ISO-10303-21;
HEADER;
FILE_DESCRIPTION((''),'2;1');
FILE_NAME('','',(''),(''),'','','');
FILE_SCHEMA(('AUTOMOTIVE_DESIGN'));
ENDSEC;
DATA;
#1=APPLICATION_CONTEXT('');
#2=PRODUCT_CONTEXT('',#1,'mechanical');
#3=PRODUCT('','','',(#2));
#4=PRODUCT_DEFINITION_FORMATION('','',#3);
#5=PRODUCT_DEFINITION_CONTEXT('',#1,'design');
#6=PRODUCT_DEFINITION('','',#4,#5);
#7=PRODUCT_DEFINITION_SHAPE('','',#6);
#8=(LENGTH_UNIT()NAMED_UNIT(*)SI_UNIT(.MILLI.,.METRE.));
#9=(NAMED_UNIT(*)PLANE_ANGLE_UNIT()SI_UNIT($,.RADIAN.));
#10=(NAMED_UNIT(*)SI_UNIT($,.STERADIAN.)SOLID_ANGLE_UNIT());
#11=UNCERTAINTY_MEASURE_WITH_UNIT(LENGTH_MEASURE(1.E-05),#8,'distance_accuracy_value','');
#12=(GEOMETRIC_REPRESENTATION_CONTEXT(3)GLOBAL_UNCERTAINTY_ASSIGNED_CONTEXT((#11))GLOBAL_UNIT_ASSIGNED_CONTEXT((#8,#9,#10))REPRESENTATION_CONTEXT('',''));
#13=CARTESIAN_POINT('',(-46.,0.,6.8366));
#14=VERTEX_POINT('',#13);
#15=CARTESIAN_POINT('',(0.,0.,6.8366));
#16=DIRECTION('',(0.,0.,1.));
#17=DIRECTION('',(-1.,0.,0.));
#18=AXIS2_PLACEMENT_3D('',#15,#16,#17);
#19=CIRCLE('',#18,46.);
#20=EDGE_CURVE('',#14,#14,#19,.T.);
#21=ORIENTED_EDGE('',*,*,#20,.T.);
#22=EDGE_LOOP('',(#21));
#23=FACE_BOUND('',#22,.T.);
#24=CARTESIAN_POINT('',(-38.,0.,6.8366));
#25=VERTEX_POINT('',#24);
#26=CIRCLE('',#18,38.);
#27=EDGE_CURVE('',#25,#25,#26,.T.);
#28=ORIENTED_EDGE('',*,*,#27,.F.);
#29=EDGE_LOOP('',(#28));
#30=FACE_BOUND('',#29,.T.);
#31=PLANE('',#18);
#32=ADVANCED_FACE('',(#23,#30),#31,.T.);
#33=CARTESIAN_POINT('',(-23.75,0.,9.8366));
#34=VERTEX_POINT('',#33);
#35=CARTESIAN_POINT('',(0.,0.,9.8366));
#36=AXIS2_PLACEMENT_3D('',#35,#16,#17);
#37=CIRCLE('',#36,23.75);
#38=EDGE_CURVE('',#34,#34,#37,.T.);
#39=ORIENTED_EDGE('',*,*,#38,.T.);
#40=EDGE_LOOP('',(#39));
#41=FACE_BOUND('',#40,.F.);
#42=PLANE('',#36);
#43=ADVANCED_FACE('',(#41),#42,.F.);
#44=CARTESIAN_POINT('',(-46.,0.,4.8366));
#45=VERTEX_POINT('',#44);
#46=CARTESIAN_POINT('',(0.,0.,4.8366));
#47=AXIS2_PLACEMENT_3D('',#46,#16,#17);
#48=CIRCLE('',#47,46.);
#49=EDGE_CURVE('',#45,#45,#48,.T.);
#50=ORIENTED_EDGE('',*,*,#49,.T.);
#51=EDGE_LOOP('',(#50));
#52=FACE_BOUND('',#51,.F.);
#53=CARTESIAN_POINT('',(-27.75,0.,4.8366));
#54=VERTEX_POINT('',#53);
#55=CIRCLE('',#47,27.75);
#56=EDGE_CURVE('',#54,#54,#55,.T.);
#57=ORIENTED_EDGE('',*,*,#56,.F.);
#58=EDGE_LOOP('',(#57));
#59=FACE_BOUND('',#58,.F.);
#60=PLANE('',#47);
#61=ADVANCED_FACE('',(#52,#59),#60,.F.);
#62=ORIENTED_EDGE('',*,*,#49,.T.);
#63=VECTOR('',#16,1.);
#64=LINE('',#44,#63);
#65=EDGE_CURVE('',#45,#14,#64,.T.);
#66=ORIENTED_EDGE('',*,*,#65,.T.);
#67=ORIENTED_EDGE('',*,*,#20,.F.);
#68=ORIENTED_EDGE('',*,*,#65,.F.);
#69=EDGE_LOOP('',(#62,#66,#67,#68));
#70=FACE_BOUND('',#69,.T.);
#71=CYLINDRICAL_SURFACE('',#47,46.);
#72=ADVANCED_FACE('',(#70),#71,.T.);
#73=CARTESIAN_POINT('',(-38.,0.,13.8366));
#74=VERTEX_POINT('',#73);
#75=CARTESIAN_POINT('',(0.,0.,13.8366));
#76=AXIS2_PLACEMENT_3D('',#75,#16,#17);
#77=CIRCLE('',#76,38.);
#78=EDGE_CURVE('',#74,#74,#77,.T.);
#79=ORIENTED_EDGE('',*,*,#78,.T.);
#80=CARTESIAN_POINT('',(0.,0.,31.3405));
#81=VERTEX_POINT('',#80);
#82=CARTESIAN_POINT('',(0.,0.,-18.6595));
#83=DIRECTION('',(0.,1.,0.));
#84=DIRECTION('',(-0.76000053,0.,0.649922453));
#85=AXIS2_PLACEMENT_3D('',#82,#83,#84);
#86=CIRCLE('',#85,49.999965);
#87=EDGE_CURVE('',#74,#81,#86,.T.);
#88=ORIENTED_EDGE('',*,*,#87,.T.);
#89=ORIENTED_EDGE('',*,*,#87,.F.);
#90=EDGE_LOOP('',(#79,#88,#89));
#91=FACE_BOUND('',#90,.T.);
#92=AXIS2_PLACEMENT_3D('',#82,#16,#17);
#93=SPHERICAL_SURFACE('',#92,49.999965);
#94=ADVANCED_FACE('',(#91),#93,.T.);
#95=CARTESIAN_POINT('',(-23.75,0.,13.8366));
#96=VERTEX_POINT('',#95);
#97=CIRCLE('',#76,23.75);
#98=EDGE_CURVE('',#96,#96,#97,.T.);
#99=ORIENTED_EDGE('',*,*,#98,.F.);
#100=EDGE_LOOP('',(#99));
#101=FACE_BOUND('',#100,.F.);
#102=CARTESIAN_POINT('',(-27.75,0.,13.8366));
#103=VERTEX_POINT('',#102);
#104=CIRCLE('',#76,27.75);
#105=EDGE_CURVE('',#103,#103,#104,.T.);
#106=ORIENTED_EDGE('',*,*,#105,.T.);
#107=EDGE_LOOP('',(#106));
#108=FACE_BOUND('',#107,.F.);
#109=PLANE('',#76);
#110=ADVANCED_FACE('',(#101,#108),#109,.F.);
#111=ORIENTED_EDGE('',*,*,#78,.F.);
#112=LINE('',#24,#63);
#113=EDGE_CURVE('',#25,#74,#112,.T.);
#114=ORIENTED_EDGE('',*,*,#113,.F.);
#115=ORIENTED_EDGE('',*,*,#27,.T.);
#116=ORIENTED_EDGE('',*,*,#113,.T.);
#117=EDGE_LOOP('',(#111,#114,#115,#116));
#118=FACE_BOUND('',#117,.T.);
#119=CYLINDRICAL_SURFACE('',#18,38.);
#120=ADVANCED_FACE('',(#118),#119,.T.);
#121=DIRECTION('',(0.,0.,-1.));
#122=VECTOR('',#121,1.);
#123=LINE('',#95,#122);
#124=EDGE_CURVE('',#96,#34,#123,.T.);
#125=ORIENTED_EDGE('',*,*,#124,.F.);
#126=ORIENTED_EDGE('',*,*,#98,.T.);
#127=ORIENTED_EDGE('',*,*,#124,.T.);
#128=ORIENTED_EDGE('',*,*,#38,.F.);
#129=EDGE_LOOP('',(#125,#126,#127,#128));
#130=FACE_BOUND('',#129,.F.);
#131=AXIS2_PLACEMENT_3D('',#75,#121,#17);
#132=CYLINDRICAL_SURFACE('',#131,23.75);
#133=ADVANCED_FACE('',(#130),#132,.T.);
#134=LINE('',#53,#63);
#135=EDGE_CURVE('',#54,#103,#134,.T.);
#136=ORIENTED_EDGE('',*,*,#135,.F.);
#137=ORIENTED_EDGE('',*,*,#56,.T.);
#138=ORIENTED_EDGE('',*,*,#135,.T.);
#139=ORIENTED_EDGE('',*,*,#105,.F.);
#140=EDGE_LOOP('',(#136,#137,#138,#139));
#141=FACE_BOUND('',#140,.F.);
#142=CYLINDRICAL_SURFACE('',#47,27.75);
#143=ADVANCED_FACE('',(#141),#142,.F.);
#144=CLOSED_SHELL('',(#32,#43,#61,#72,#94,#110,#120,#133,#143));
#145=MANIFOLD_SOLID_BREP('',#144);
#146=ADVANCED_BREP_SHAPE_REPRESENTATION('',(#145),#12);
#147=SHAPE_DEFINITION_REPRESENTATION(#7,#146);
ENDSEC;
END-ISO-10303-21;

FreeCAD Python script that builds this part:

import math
import FreeCAD as App
import Part
import Sketcher

V = App.Vector

doc = App.newDocument("Part")
params = doc.addObject("Spreadsheet::Sheet", "Params")
for row, (alias, value) in enumerate([
    ("sketch1_radius", "50 mm"),
    ("sketch1_width", "8 mm"),
    ("sketch1_width2", "4 mm"),
    ("sketch1_height", "2 mm"),
    ("sketch1_height2", "7 mm"),
    ("revolution_angle", "360 deg"),
], start=1):
    params.set(f"A{row}", alias)
    params.set(f"B{row}", "=" + value)
    params.setAlias(f"B{row}", alias)

body = doc.addObject("PartDesign::Body", "Body")

# Sketch on XZ plane
sketch1 = doc.addObject("Sketcher::SketchObject", "Sketch")
body.addObject(sketch1)
sketch1.AttachmentSupport = (doc.XZ_Plane, [""])
sketch1.MapMode = "FlatFace"
sketch1.addGeometry([
    Part.LineSegment(V(-27.75, 4.8366, 0), V(-46, 4.8366, 0)),  # 0
    Part.LineSegment(V(-46, 4.8366, 0), V(-46, 6.8366, 0)),  # 1
    Part.LineSegment(V(-46, 6.8366, 0), V(-38, 6.8366, 0)),  # 2
    Part.LineSegment(V(-38, 6.8366, 0), V(-38, 13.8366, 0)),  # 3
    Part.ArcOfCircle(Part.Circle(V(0, -18.6595, 0), V(0, 0, 1), 49.999965), math.radians(90), math.radians(139.464245)),  # 4
    Part.LineSegment(V(0, 31.3405, 0), V(0, 9.8366, 0)),  # 5
    Part.LineSegment(V(0, 9.8366, 0), V(-23.75, 9.8366, 0)),  # 6
    Part.LineSegment(V(-23.75, 9.8366, 0), V(-23.75, 13.8366, 0)),  # 7
    Part.LineSegment(V(-23.75, 13.8366, 0), V(-27.75, 13.8366, 0)),  # 8
    Part.LineSegment(V(-27.75, 13.8366, 0), V(-27.75, 4.8366, 0)),  # 9
], False)
sketch1.addConstraint([
    Sketcher.Constraint("Coincident", 0, 2, 1, 1),
    Sketcher.Constraint("Coincident", 1, 2, 2, 1),
    Sketcher.Constraint("Coincident", 2, 2, 3, 1),
    Sketcher.Constraint("Coincident", 3, 2, 4, 2),
    Sketcher.Constraint("Coincident", 4, 1, 5, 1),
    Sketcher.Constraint("Coincident", 5, 2, 6, 1),
    Sketcher.Constraint("Coincident", 6, 2, 7, 1),
    Sketcher.Constraint("Coincident", 7, 2, 8, 1),
    Sketcher.Constraint("Coincident", 8, 2, 9, 1),
    Sketcher.Constraint("Coincident", 9, 2, 0, 1),
    Sketcher.Constraint("Horizontal", 0),
    Sketcher.Constraint("Vertical", 1),
    Sketcher.Constraint("Horizontal", 2),
    Sketcher.Constraint("Vertical", 3),
    Sketcher.Constraint("Vertical", 5),
    Sketcher.Constraint("Horizontal", 6),
    Sketcher.Constraint("Vertical", 7),
    Sketcher.Constraint("Horizontal", 8),
    Sketcher.Constraint("Vertical", 9),
    Sketcher.Constraint("PointOnObject", 4, 3, -2),
    Sketcher.Constraint("PointOnObject", 4, 1, -2),
    Sketcher.Constraint("Horizontal", 3, 2, 7, 2),
    Sketcher.Constraint("Equal", 8, 7),
    Sketcher.Constraint("Radius", 4, 50.0),
    Sketcher.Constraint("DistanceX", 2, 1, 2, 2, 8.0),
    Sketcher.Constraint("DistanceX", 8, 2, 8, 1, 4.0),
    Sketcher.Constraint("DistanceY", 1, 1, 1, 2, 2.0),
    Sketcher.Constraint("DistanceY", 3, 1, 3, 2, 7.0),
    Sketcher.Constraint("DistanceX", 0, 2, -1, 1, 46.0),
    Sketcher.Constraint("DistanceX", 0, 2, 0, 1, 18.25),
    Sketcher.Constraint("DistanceY", 4, 3, -1, 1, 18.6595),
])
sketch1.setExpression("Constraints[23]", "Params.sketch1_radius")
sketch1.setExpression("Constraints[24]", "Params.sketch1_width")
sketch1.setExpression("Constraints[25]", "Params.sketch1_width2")
sketch1.setExpression("Constraints[26]", "Params.sketch1_height")
sketch1.setExpression("Constraints[27]", "Params.sketch1_height2")
revolution = doc.addObject("PartDesign::Revolution", "Revolution")
body.addObject(revolution)
revolution.Profile = sketch1
revolution.ReferenceAxis = (sketch1, ["V_Axis"])
revolution.setExpression("Angle", "Params.revolution_angle")

doc.recompute()
